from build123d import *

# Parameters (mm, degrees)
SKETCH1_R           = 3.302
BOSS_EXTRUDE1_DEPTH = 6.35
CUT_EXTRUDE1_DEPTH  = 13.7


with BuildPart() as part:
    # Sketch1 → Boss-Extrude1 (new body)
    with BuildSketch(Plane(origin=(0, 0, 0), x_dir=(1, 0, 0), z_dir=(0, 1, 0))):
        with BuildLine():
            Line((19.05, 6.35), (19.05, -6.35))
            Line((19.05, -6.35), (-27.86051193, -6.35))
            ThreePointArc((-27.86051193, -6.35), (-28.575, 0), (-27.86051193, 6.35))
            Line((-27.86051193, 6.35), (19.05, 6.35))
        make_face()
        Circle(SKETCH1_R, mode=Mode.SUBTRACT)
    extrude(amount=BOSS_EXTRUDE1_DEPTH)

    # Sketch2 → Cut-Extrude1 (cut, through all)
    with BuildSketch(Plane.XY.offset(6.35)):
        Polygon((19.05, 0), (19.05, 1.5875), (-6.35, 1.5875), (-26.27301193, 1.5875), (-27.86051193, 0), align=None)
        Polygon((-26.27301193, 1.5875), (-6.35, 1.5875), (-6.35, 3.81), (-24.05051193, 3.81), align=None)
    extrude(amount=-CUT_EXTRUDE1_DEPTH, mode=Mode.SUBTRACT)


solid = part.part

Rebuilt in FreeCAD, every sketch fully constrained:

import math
import FreeCAD as App
import Part
import Sketcher

V = App.Vector
Q = App.Units.Quantity

doc = App.newDocument("Part")
params = doc.addObject("Spreadsheet::Sheet", "Params")
for row, (alias, value) in enumerate([
    ("sketch1_diameter", "0.26 in"),
    ("sketch1_height", "0.5 in"),
    ("sketch1_radius", "1.125 in"),
    ("pad1_length", "0.25 in"),
    ("sketch2_width", "1 in"),
    ("sketch2_height", "0.0625 in"),
], start=1):
    params.set(f"A{row}", alias)
    params.set(f"B{row}", "=" + value)
    params.setAlias(f"B{row}", alias)

body = doc.addObject("PartDesign::Body", "Body")

# Sketch on XZ plane
sketch1 = doc.addObject("Sketcher::SketchObject", "Sketch")
body.addObject(sketch1)
sketch1.AttachmentSupport = (doc.XZ_Plane, [""])
sketch1.MapMode = "FlatFace"
sketch1.addGeometry(Part.LineSegment(V(19.1, 6.3, 0), V(19.1, -6.3, 0)), False)
sketch1.addGeometry(Part.LineSegment(V(19.1, -6.3, 0), V(-27.9, -6.3, 0)), False)
sketch1.addGeometry(Part.ArcOfCircle(Part.Circle(V(0, 0, 0), V(0, 0, 1), 28.6), math.radians(167), math.radians(193)), False)
sketch1.addGeometry(Part.LineSegment(V(-27.9, 6.3, 0), V(19.1, 6.3, 0)), False)
sketch1.addGeometry(Part.Circle(V(0, 0, 0), V(0, 0, 1), 3.3), False)
sketch1.addConstraint(Sketcher.Constraint("Coincident", 0, 2, 1, 1))
sketch1.addConstraint(Sketcher.Constraint("Coincident", 1, 2, 2, 2))
sketch1.addConstraint(Sketcher.Constraint("Coincident", 2, 1, 3, 1))
sketch1.addConstraint(Sketcher.Constraint("Coincident", 3, 2, 0, 1))
sketch1.addConstraint(Sketcher.Constraint("Vertical", 0))
sketch1.addConstraint(Sketcher.Constraint("Horizontal", 1))
sketch1.addConstraint(Sketcher.Constraint("Horizontal", 3))
sketch1.addConstraint(Sketcher.Constraint("Coincident", 2, 3, -1, 1))
sketch1.addConstraint(Sketcher.Constraint("Coincident", 4, 3, -1, 1))
sketch1.addConstraint(Sketcher.Constraint("Vertical", 1, 2, 2, 1))
sketch1.addConstraint(Sketcher.Constraint("Diameter", 4, Q("0.26 in")))
sketch1.addConstraint(Sketcher.Constraint("DistanceY", 0, 2, 0, 1, Q("0.5 in")))
sketch1.addConstraint(Sketcher.Constraint("Radius", 2, Q("1.125 in")))
sketch1.addConstraint(Sketcher.Constraint("DistanceX", -1, 1, 0, 2, Q("0.75 in")))
sketch1.setExpression("Constraints[10]", "Params.sketch1_diameter")
sketch1.setExpression("Constraints[11]", "Params.sketch1_height")
sketch1.setExpression("Constraints[12]", "Params.sketch1_radius")
pad1 = doc.addObject("PartDesign::Pad", "Pad")
body.addObject(pad1)
pad1.Profile = sketch1
pad1.setExpression("Length", "Params.pad1_length")
pad1.Reversed = True

# Sketch on XY plane
sketch2 = doc.addObject("Sketcher::SketchObject", "Sketch001")
body.addObject(sketch2)
sketch2.AttachmentSupport = (doc.XY_Plane, [""])
sketch2.MapMode = "FlatFace"
sketch2.AttachmentOffset = App.Placement(V(0, 0, 0.25 * 25.4), App.Rotation())
sketch2.addGeometry(Part.LineSegment(V(19.1, 0, 0), V(19.1, 1.6, 0)), False)
sketch2.addGeometry(Part.LineSegment(V(19.1, 1.6, 0), V(-6.3, 1.6, 0)), False)
sketch2.addGeometry(Part.LineSegment(V(-6.3, 1.6, 0), V(-6.3, 3.8, 0)), False)
sketch2.addGeometry(Part.LineSegment(V(-6.3, 3.8, 0), V(-24.1, 3.8, 0)), False)
sketch2.addGeometry(Part.LineSegment(V(-24.1, 3.8, 0), V(-27.9, 0, 0)), False)
sketch2.addGeometry(Part.LineSegment(V(-27.9, 0, 0), V(19.1, 0, 0)), False)
sketch2.addConstraint(Sketcher.Constraint("Coincident", 0, 2, 1, 1))
sketch2.addConstraint(Sketcher.Constraint("Coincident", 1, 2, 2, 1))
sketch2.addConstraint(Sketcher.Constraint("Coincident", 2, 2, 3, 1))
sketch2.addConstraint(Sketcher.Constraint("Coincident", 3, 2, 4, 1))
sketch2.addConstraint(Sketcher.Constraint("Coincident", 4, 2, 5, 1))
sketch2.addConstraint(Sketcher.Constraint("Coincident", 5, 2, 0, 1))
sketch2.addConstraint(Sketcher.Constraint("Vertical", 0))
sketch2.addConstraint(Sketcher.Constraint("Horizontal", 1))
sketch2.addConstraint(Sketcher.Constraint("Vertical", 2))
sketch2.addConstraint(Sketcher.Constraint("Horizontal", 3))
sketch2.addConstraint(Sketcher.Constraint("Horizontal", 5))
sketch2.addConstraint(Sketcher.Constraint("PointOnObject", 4, 2, -1))
sketch2.addConstraint(Sketcher.Constraint("DistanceX", 1, 2, 1, 1, Q("1 in")))
sketch2.addConstraint(Sketcher.Constraint("Angle", 4, Q("-135 deg")))
sketch2.addConstraint(Sketcher.Constraint("DistanceY", 0, 1, 0, 2, Q("0.0625 in")))
sketch2.addConstraint(Sketcher.Constraint("DistanceX", -1, 1, 0, 2, Q("0.75 in")))
sketch2.addConstraint(Sketcher.Constraint("DistanceY", -1, 1, 2, 2, Q("0.15 in")))
sketch2.addConstraint(Sketcher.Constraint("DistanceX", 3, 2, 3, 1, Q("17.700512 mm")))
sketch2.setExpression("Constraints[12]", "Params.sketch2_width")
sketch2.setExpression("Constraints[14]", "Params.sketch2_height")
pocket1 = doc.addObject("PartDesign::Pocket", "Pocket")
body.addObject(pocket1)
pocket1.Profile = sketch2
pocket1.Type = "ThroughAll"

doc.recompute()
